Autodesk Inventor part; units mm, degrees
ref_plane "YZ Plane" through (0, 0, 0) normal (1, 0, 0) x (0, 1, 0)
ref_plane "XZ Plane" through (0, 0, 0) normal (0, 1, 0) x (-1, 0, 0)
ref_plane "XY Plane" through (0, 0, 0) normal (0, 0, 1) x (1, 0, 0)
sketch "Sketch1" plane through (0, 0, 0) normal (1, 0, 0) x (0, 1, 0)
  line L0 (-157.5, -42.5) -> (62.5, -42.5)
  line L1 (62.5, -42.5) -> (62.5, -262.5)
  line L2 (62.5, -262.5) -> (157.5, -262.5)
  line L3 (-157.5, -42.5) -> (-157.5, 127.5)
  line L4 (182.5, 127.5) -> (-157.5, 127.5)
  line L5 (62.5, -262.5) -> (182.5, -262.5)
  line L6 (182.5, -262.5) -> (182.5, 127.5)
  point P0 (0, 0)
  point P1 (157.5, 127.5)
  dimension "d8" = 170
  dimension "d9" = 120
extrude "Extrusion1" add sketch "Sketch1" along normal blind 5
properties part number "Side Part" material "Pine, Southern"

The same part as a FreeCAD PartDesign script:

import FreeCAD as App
import Part
import Sketcher

V = App.Vector

doc = App.newDocument("Part")
body = doc.addObject("PartDesign::Body", "Body")

# Sketch on YZ plane
sketch1 = doc.addObject("Sketcher::SketchObject", "Sketch")
body.addObject(sketch1)
sketch1.AttachmentSupport = (doc.YZ_Plane, [""])
sketch1.MapMode = "FlatFace"
sketch1.addGeometry([
    Part.LineSegment(V(-157.5, 127.5, 0), V(-157.5, -42.5, 0)),  # 0
    Part.LineSegment(V(-157.5, -42.5, 0), V(62.5, -42.5, 0)),  # 1
    Part.LineSegment(V(62.5, -42.5, 0), V(62.5, -262.5, 0)),  # 2
    Part.LineSegment(V(62.5, -262.5, 0), V(182.5, -262.5, 0)),  # 3
    Part.LineSegment(V(182.5, -262.5, 0), V(182.5, 127.5, 0)),  # 4
    Part.LineSegment(V(182.5, 127.5, 0), V(-157.5, 127.5, 0)),  # 5
], False)
sketch1.addConstraint([
    Sketcher.Constraint("Coincident", 0, 2, 1, 1),
    Sketcher.Constraint("Coincident", 1, 2, 2, 1),
    Sketcher.Constraint("Coincident", 2, 2, 3, 1),
    Sketcher.Constraint("Coincident", 3, 2, 4, 1),
    Sketcher.Constraint("Coincident", 4, 2, 5, 1),
    Sketcher.Constraint("Coincident", 5, 2, 0, 1),
    Sketcher.Constraint("Vertical", 0),
    Sketcher.Constraint("Horizontal", 1),
    Sketcher.Constraint("Vertical", 2),
    Sketcher.Constraint("Horizontal", 3),
    Sketcher.Constraint("Vertical", 4),
    Sketcher.Constraint("Horizontal", 5),
    Sketcher.Constraint("Equal", 1, 2),
    Sketcher.Constraint("DistanceX", 3, 1, 3, 2, 120.0),
    Sketcher.Constraint("DistanceY", 0, 2, 0, 1, 170.0),
    Sketcher.Constraint("DistanceX", 1, 1, 1, 2, 220.0),
    Sketcher.Constraint("DistanceX", 0, 2, -1, 1, 157.5),
    Sketcher.Constraint("DistanceY", 0, 2, -1, 1, 42.5),
])
pad1 = doc.addObject("PartDesign::Pad", "Pad")
body.addObject(pad1)
pad1.Profile = sketch1
pad1.Length = 5

doc.recompute()
